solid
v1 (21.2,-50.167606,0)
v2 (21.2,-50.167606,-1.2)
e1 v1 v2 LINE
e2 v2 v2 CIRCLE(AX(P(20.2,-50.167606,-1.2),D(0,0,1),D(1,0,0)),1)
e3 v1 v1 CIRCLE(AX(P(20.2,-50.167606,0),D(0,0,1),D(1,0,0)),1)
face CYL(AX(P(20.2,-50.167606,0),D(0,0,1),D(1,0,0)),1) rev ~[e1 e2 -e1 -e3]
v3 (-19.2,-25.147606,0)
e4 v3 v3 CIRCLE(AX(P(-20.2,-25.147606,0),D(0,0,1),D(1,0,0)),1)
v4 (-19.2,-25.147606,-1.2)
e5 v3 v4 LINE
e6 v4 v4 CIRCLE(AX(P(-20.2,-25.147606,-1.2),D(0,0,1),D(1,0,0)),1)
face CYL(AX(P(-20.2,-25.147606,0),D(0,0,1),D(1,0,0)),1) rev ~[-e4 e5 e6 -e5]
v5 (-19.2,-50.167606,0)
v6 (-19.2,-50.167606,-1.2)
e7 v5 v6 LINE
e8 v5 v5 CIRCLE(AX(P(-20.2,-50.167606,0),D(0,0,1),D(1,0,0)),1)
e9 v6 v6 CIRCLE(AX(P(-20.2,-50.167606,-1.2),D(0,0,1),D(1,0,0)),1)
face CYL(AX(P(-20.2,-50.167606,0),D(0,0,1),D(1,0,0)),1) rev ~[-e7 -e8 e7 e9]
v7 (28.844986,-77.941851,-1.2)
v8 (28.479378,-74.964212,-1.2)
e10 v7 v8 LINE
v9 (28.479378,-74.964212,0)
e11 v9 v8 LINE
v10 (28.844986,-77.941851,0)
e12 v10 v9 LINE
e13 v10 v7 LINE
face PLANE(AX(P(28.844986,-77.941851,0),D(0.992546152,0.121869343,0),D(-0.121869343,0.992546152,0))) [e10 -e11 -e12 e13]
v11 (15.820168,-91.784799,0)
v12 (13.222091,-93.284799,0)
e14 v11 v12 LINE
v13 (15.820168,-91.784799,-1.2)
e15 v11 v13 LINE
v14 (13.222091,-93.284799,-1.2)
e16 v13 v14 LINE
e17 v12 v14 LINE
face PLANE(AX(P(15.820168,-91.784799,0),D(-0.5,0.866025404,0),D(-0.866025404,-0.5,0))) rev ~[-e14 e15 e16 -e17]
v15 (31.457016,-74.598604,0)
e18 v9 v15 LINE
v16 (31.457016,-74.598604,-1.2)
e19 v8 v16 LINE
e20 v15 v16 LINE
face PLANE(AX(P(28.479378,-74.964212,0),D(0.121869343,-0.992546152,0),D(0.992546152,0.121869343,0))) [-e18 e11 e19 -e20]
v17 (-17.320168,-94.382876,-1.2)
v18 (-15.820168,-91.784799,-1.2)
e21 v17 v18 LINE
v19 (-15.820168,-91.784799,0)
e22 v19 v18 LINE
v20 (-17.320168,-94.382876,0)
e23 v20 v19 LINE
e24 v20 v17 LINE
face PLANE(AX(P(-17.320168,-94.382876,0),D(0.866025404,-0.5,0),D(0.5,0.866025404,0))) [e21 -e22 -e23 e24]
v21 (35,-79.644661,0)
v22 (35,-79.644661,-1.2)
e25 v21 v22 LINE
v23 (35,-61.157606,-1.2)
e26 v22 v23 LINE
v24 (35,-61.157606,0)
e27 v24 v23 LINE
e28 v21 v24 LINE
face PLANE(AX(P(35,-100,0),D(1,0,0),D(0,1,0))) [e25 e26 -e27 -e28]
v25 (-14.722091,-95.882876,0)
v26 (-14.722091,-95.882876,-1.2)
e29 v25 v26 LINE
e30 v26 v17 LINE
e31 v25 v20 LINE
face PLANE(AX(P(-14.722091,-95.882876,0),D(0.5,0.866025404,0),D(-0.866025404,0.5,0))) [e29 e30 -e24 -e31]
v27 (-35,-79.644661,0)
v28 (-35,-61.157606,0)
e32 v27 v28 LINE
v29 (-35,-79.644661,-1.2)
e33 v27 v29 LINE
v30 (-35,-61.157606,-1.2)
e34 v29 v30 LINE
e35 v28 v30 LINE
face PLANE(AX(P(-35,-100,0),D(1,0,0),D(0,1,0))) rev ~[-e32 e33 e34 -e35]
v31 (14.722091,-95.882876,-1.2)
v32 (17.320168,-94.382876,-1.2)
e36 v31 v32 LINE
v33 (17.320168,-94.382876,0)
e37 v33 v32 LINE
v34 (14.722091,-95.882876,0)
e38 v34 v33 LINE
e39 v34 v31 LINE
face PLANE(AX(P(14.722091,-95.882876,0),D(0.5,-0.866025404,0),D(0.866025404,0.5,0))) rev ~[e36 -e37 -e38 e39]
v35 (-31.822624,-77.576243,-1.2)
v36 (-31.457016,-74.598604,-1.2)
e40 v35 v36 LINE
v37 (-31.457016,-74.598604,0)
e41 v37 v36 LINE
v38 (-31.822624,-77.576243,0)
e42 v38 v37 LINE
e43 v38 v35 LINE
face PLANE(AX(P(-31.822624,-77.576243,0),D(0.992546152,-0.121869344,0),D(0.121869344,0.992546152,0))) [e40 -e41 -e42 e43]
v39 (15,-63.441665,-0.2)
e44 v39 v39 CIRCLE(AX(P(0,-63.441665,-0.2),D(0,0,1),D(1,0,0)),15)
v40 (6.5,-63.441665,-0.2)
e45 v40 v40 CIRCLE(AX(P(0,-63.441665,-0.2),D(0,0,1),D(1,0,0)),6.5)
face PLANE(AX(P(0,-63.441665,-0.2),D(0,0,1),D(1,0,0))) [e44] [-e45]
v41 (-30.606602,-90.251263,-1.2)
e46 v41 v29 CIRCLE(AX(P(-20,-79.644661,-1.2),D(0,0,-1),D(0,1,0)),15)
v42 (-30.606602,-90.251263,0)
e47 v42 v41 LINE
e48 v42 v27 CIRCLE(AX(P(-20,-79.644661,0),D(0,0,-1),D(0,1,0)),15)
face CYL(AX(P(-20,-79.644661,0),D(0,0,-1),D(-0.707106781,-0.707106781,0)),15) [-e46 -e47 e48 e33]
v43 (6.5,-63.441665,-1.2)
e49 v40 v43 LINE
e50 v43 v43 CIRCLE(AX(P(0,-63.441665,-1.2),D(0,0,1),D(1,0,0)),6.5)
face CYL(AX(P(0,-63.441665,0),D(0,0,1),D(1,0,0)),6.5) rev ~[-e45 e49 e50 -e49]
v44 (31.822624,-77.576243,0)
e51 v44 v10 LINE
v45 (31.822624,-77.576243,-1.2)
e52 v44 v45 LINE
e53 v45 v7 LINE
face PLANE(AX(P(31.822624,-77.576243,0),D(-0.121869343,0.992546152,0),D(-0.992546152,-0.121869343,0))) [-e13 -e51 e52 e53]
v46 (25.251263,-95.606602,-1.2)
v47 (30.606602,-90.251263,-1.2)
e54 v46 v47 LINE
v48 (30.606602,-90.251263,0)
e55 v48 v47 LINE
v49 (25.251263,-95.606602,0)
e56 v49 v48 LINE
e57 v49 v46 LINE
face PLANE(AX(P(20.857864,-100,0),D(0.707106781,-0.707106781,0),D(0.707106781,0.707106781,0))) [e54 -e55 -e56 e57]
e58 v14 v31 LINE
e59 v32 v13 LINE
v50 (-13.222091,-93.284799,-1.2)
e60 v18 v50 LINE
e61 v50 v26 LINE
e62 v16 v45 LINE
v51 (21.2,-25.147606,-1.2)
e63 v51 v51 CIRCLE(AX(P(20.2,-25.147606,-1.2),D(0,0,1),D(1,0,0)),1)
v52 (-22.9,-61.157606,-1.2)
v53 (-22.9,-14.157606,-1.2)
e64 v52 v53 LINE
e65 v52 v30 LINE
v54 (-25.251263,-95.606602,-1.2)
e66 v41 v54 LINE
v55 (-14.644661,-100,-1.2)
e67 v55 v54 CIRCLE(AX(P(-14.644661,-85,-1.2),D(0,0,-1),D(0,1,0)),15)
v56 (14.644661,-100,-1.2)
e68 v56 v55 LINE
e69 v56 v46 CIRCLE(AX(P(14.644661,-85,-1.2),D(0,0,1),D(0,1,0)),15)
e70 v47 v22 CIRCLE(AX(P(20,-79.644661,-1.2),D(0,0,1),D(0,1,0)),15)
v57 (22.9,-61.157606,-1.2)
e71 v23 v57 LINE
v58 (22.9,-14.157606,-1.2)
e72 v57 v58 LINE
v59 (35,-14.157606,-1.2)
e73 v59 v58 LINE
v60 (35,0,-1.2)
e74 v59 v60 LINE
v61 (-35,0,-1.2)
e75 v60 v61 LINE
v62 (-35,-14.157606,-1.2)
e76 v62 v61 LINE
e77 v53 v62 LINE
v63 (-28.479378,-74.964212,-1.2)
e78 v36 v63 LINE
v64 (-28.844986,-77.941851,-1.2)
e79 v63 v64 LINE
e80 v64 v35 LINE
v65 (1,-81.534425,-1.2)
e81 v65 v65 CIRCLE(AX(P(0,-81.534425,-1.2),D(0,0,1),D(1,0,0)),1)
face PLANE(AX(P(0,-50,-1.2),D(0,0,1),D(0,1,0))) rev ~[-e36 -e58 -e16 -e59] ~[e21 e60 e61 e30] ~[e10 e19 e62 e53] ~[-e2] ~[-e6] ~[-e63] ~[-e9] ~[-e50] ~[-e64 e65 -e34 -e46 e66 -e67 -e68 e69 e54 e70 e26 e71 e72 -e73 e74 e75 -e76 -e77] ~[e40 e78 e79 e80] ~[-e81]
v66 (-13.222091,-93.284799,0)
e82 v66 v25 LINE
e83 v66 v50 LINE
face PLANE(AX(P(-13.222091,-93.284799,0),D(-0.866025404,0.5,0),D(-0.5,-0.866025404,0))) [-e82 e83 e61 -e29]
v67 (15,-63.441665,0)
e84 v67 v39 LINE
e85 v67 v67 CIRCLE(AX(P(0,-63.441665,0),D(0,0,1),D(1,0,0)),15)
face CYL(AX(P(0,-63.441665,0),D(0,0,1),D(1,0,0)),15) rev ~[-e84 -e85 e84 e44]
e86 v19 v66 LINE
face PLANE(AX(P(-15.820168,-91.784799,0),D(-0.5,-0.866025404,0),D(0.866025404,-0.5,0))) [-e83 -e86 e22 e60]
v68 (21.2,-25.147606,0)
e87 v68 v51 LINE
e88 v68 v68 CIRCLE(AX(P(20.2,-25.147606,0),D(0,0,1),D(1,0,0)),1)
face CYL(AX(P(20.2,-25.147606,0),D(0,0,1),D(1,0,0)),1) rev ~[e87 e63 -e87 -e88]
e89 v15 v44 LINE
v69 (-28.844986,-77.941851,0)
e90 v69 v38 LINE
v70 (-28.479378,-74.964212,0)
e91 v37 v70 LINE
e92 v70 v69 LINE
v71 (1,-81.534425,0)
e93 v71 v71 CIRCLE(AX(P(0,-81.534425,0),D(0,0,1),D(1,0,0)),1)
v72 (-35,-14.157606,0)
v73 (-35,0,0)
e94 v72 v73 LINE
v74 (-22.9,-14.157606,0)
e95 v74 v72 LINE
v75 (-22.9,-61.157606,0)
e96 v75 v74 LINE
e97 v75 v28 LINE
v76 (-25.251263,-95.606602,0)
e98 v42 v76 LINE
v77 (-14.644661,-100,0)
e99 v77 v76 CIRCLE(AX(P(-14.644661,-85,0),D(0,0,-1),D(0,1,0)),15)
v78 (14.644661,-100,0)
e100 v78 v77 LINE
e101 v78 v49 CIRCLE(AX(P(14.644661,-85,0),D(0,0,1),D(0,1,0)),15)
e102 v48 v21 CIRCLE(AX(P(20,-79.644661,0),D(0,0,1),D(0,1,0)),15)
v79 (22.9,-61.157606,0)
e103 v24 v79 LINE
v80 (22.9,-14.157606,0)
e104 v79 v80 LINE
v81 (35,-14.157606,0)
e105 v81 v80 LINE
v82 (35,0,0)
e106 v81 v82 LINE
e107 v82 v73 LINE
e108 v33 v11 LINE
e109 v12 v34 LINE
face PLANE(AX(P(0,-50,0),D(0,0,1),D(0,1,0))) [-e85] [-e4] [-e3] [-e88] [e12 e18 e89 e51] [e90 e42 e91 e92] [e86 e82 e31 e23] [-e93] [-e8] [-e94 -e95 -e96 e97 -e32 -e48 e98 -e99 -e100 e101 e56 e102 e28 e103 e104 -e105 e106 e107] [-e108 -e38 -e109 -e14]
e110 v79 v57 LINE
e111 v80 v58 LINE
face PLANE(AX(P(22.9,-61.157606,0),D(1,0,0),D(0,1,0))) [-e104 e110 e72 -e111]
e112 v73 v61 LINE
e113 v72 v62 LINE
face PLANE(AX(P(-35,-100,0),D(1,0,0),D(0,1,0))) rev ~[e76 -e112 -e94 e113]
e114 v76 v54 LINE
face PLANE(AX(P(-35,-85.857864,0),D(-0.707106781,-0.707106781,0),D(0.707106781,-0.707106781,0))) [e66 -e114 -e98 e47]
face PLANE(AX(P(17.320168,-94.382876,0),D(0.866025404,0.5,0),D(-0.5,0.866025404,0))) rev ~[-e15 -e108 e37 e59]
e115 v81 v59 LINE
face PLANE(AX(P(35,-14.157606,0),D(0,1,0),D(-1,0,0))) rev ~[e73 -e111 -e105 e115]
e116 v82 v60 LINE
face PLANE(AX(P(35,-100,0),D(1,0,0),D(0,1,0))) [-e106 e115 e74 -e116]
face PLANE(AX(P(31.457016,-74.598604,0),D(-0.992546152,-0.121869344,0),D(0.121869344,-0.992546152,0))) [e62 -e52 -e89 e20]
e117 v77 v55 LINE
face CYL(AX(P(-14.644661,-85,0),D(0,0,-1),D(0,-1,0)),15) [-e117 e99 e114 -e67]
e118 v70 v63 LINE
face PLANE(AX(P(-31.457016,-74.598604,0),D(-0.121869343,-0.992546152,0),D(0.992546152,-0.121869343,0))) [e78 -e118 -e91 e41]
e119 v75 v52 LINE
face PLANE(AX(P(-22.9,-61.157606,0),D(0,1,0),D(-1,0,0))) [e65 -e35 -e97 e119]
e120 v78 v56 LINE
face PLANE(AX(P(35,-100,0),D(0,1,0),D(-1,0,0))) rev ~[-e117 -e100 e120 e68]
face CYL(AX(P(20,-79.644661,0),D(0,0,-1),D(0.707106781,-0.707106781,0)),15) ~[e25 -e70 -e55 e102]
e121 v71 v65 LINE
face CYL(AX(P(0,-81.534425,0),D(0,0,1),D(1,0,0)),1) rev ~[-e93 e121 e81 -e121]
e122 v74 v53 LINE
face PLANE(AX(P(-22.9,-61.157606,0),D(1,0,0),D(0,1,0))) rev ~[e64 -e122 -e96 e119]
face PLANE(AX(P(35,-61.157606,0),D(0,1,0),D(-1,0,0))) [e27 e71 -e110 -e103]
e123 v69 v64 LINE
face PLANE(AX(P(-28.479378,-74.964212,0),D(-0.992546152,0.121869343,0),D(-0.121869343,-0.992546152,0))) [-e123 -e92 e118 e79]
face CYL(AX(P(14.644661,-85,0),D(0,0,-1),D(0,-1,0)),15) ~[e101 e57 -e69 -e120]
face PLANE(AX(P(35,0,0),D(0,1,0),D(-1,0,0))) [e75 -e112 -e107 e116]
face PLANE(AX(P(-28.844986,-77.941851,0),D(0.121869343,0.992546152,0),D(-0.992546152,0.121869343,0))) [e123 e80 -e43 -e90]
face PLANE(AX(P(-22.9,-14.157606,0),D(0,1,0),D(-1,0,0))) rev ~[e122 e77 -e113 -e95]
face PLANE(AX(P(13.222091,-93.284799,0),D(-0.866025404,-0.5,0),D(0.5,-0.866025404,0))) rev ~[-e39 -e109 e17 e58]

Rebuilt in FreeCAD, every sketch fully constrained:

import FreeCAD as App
import Part
import Sketcher
Q = App.Units.Quantity


def edges_at(feature, points):
    """Names of the edges that pass closest to the given points."""
    edges = feature.Shape.Edges
    near = lambda p: min(range(len(edges)), key=lambda i: edges[i].distToShape(Part.Vertex(*p))[0])
    return sorted({f"Edge{near(p) + 1}" for p in points})

doc = App.newDocument("Part")
body = doc.addObject("PartDesign::Body", "Body")

# Sketch on XY plane
sketch1 = body.newObject("Sketcher::SketchObject", "Sketch")
sketch1.AttachmentSupport = (doc.getObject("XY_Plane"), [""])
sketch1.MapMode = "FlatFace"
sketch1.addGeometry([
    Part.LineSegment(App.Vector(-35, -100, 0), App.Vector(35, -100, 0)),  # 0
    Part.LineSegment(App.Vector(35, -100, 0), App.Vector(35, 0, 0)),  # 1
    Part.LineSegment(App.Vector(35, 0, 0), App.Vector(-35, 0, 0)),  # 2
    Part.LineSegment(App.Vector(-35, 0, 0), App.Vector(-35, -100, 0)),  # 3
    Part.Circle(App.Vector(20.2, -50.167606, 0), App.Vector(0, 0, 1), 1),  # 4
    Part.Circle(App.Vector(20.2, -25.147606, 0), App.Vector(0, 0, 1), 1),  # 5
    Part.Circle(App.Vector(0, -81.534425, 0), App.Vector(0, 0, 1), 1),  # 6
    Part.Circle(App.Vector(0, -63.441665, 0), App.Vector(0, 0, 1), 6.5),  # 7
    Part.Circle(App.Vector(-20.2, -50.167606, 0), App.Vector(0, 0, 1), 1),  # 8
    Part.Circle(App.Vector(-20.2, -25.147606, 0), App.Vector(0, 0, 1), 1),  # 9
], False)
sketch1.addConstraint([
    Sketcher.Constraint("Coincident", 0, 2, 1, 1),
    Sketcher.Constraint("Coincident", 1, 2, 2, 1),
    Sketcher.Constraint("Coincident", 2, 2, 3, 1),
    Sketcher.Constraint("Coincident", 3, 2, 0, 1),
    Sketcher.Constraint("Horizontal", 0),
    Sketcher.Constraint("Vertical", 1),
    Sketcher.Constraint("Horizontal", 2),
    Sketcher.Constraint("Vertical", 3),
    Sketcher.Constraint("Equal", 4, 5),
    Sketcher.Constraint("Equal", 5, 6),
    Sketcher.Constraint("Equal", 6, 8),
    Sketcher.Constraint("Equal", 8, 9),
    Sketcher.Constraint("Symmetric", 1, 2, 2, 2, -1, 1),
    Sketcher.Constraint("Symmetric", 4, 3, 8, 3, -2),
    Sketcher.Constraint("Symmetric", 5, 3, 9, 3, -2),
    Sketcher.Constraint("PointOnObject", 6, 3, -2),
    Sketcher.Constraint("PointOnObject", 7, 3, -2),
    Sketcher.Constraint("Vertical", 4, 3, 5, 3),
    Sketcher.Constraint("Diameter", 4, 2.0),
    Sketcher.Constraint("Diameter", 7, 13.0),
    Sketcher.Constraint("DistanceX", 0, 1, 0, 2, 70.0),
    Sketcher.Constraint("DistanceY", 1, 1, 1, 2, 100.0),
    Sketcher.Constraint("DistanceX", -1, 1, 4, 3, 20.2),
    Sketcher.Constraint("DistanceY", 4, 3, 5, 3, 25.02),
    Sketcher.Constraint("DistanceY", 6, 3, 4, 3, 31.366819),
    Sketcher.Constraint("DistanceY", 6, 3, 7, 3, 18.09276),
    Sketcher.Constraint("DistanceY", 4, 3, -1, 1, 50.167606),
])
pad1 = body.newObject("PartDesign::Pad", "Pad")
pad1.Profile = sketch1
pad1.Length = 1.2
pad1.Reversed = True

# Sketch on XY plane
sketch2 = body.newObject("Sketcher::SketchObject", "Sketch001")
sketch2.AttachmentSupport = (doc.getObject("XY_Plane"), [""])
sketch2.MapMode = "FlatFace"
sketch2.addGeometry([
    Part.LineSegment(App.Vector(-35, -61.157606, 0), App.Vector(-22.9, -61.157606, 0)),  # 0
    Part.LineSegment(App.Vector(-22.9, -61.157606, 0), App.Vector(-22.9, -14.157606, 0)),  # 1
    Part.LineSegment(App.Vector(-22.9, -14.157606, 0), App.Vector(-35, -14.157606, 0)),  # 2
    Part.LineSegment(App.Vector(-35, -14.157606, 0), App.Vector(-35, -61.157606, 0)),  # 3
    Part.LineSegment(App.Vector(22.9, -61.157606, 0), App.Vector(35, -61.157606, 0)),  # 4
    Part.LineSegment(App.Vector(35, -61.157606, 0), App.Vector(35, -14.157606, 0)),  # 5
    Part.LineSegment(App.Vector(35, -14.157606, 0), App.Vector(22.9, -14.157606, 0)),  # 6
    Part.LineSegment(App.Vector(22.9, -14.157606, 0), App.Vector(22.9, -61.157606, 0)),  # 7
], False)
sketch2.addConstraint([
    Sketcher.Constraint("Coincident", 0, 2, 1, 1),
    Sketcher.Constraint("Coincident", 1, 2, 2, 1),
    Sketcher.Constraint("Coincident", 2, 2, 3, 1),
    Sketcher.Constraint("Coincident", 3, 2, 0, 1),
    Sketcher.Constraint("Coincident", 4, 2, 5, 1),
    Sketcher.Constraint("Coincident", 5, 2, 6, 1),
    Sketcher.Constraint("Coincident", 6, 2, 7, 1),
    Sketcher.Constraint("Coincident", 7, 2, 4, 1),
    Sketcher.Constraint("Horizontal", 0),
    Sketcher.Constraint("Vertical", 1),
    Sketcher.Constraint("Horizontal", 2),
    Sketcher.Constraint("Vertical", 3),
    Sketcher.Constraint("Horizontal", 4),
    Sketcher.Constraint("Vertical", 5),
    Sketcher.Constraint("Horizontal", 6),
    Sketcher.Constraint("Vertical", 7),
    Sketcher.Constraint("Symmetric", 3, 2, 4, 2, -2),
    Sketcher.Constraint("Symmetric", 1, 2, 6, 2, -2),
    Sketcher.Constraint("DistanceY", 1, 1, 1, 2, 47.0),
    Sketcher.Constraint("DistanceX", 0, 1, 0, 2, 12.1),
    Sketcher.Constraint("DistanceX", 2, 2, -1, 1, 35.0),
    Sketcher.Constraint("DistanceY", 0, 2, -1, 1, 61.157606),
])
pocket1 = body.newObject("PartDesign::Pocket", "Pocket")
pocket1.Profile = sketch2
pocket1.Type = "ThroughAll"

# Sketch on XY plane
sketch3 = body.newObject("Sketcher::SketchObject", "Sketch002")
sketch3.AttachmentSupport = (doc.getObject("XY_Plane"), [""])
sketch3.MapMode = "FlatFace"
sketch3.addGeometry(Part.Circle(App.Vector(0, -63.441665, 0), App.Vector(0, 0, 1), 15), False)
sketch3.addConstraint([
    Sketcher.Constraint("PointOnObject", 0, 3, -2),
    Sketcher.Constraint("Diameter", 0, 30.0),
    Sketcher.Constraint("DistanceY", 0, 3, -1, 1, 63.441665),
])
pocket2 = body.newObject("PartDesign::Pocket", "Pocket001")
pocket2.Profile = sketch3
pocket2.Length = 0.2

# Sketch on XY plane
sketch4 = body.newObject("Sketcher::SketchObject", "Sketch003")
sketch4.AttachmentSupport = (doc.getObject("XY_Plane"), [""])
sketch4.MapMode = "FlatFace"
sketch4.addGeometry([
    Part.LineSegment(App.Vector(-20.857864, -100, 0), App.Vector(-35, -85.857864, 0)),  # 0
    Part.LineSegment(App.Vector(-35, -85.857864, 0), App.Vector(-35, -100, 0)),  # 1
    Part.LineSegment(App.Vector(-35, -100, 0), App.Vector(-20.857864, -100, 0)),  # 2
    Part.LineSegment(App.Vector(35, -100, 0), App.Vector(35, -85.857864, 0)),  # 3
    Part.LineSegment(App.Vector(35, -85.857864, 0), App.Vector(20.857864, -100, 0)),  # 4
    Part.LineSegment(App.Vector(20.857864, -100, 0), App.Vector(35, -100, 0)),  # 5
], False)
sketch4.addConstraint([
    Sketcher.Constraint("Coincident", 0, 2, 1, 1),
    Sketcher.Constraint("Coincident", 1, 2, 2, 1),
    Sketcher.Constraint("Coincident", 2, 2, 0, 1),
    Sketcher.Constraint("Coincident", 3, 2, 4, 1),
    Sketcher.Constraint("Coincident", 4, 2, 5, 1),
    Sketcher.Constraint("Coincident", 5, 2, 3, 1),
    Sketcher.Constraint("Vertical", 1),
    Sketcher.Constraint("Horizontal", 2),
    Sketcher.Constraint("Vertical", 3),
    Sketcher.Constraint("Horizontal", 5),
    Sketcher.Constraint("Symmetric", 0, 2, 3, 2, -2),
    Sketcher.Constraint("Symmetric", 2, 2, 4, 2, -2),
    Sketcher.Constraint("Perpendicular", 0, 4),
    Sketcher.Constraint("Distance", 0, 20.0),
    Sketcher.Constraint("DistanceX", 0, 2, -1, 1, 35.0),
    Sketcher.Constraint("DistanceY", 1, 2, -1, 1, 100.0),
])
pocket3 = body.newObject("PartDesign::Pocket", "Pocket002")
pocket3.Profile = sketch4
pocket3.Type = "ThroughAll"
doc.recompute()

fillet = body.newObject("PartDesign::Fillet", "Fillet")
fillet.Base = (pocket3, edges_at(pocket3, [
    (-35, -85.858, -0.6),
    (-20.858, -100, -0.6),
    (20.858, -100, -0.6),
    (35, -85.858, -0.6),
]))
fillet.Radius = 15

# Sketch on XY plane
sketch5 = body.newObject("Sketcher::SketchObject", "Sketch004")
sketch5.AttachmentSupport = (doc.getObject("XY_Plane"), [""])
sketch5.MapMode = "FlatFace"
sketch5.addGeometry([
    Part.LineSegment(App.Vector(28.844986, -77.941851, 0), App.Vector(31.822624, -77.576243, 0)),  # 0
    Part.LineSegment(App.Vector(31.822624, -77.576243, 0), App.Vector(31.457016, -74.598604, 0)),  # 1
    Part.LineSegment(App.Vector(31.457016, -74.598604, 0), App.Vector(28.479378, -74.964212, 0)),  # 2
    Part.LineSegment(App.Vector(28.479378, -74.964212, 0), App.Vector(28.844986, -77.941851, 0)),  # 3
    Part.LineSegment(App.Vector(15.820168, -91.784799, 0), App.Vector(13.222091, -93.284799, 0)),  # 4
    Part.LineSegment(App.Vector(13.222091, -93.284799, 0), App.Vector(14.722091, -95.882876, 0)),  # 5
    Part.LineSegment(App.Vector(14.722091, -95.882876, 0), App.Vector(17.320168, -94.382876, 0)),  # 6
    Part.LineSegment(App.Vector(17.320168, -94.382876, 0), App.Vector(15.820168, -91.784799, 0)),  # 7
    Part.LineSegment(App.Vector(-28.479378, -74.964212, 0), App.Vector(-31.457016, -74.598604, 0)),  # 8
    Part.LineSegment(App.Vector(-31.457016, -74.598604, 0), App.Vector(-31.822624, -77.576243, 0)),  # 9
    Part.LineSegment(App.Vector(-31.822624, -77.576243, 0), App.Vector(-28.844986, -77.941851, 0)),  # 10
    Part.LineSegment(App.Vector(-28.844986, -77.941851, 0), App.Vector(-28.479378, -74.964212, 0)),  # 11
    Part.LineSegment(App.Vector(-17.320168, -94.382876, 0), App.Vector(-14.722091, -95.882876, 0)),  # 12
    Part.LineSegment(App.Vector(-14.722091, -95.882876, 0), App.Vector(-13.222091, -93.284799, 0)),  # 13
    Part.LineSegment(App.Vector(-13.222091, -93.284799, 0), App.Vector(-15.820168, -91.784799, 0)),  # 14
    Part.LineSegment(App.Vector(-15.820168, -91.784799, 0), App.Vector(-17.320168, -94.382876, 0)),  # 15
], False)
sketch5.addConstraint([
    Sketcher.Constraint("Coincident", 0, 2, 1, 1),
    Sketcher.Constraint("Coincident", 1, 2, 2, 1),
    Sketcher.Constraint("Coincident", 2, 2, 3, 1),
    Sketcher.Constraint("Coincident", 3, 2, 0, 1),
    Sketcher.Constraint("Coincident", 4, 2, 5, 1),
    Sketcher.Constraint("Coincident", 5, 2, 6, 1),
    Sketcher.Constraint("Coincident", 6, 2, 7, 1),
    Sketcher.Constraint("Coincident", 7, 2, 4, 1),
    Sketcher.Constraint("Coincident", 8, 2, 9, 1),
    Sketcher.Constraint("Coincident", 9, 2, 10, 1),
    Sketcher.Constraint("Coincident", 10, 2, 11, 1),
    Sketcher.Constraint("Coincident", 11, 2, 8, 1),
    Sketcher.Constraint("Coincident", 12, 2, 13, 1),
    Sketcher.Constraint("Coincident", 13, 2, 14, 1),
    Sketcher.Constraint("Coincident", 14, 2, 15, 1),
    Sketcher.Constraint("Coincident", 15, 2, 12, 1),
    Sketcher.Constraint("Symmetric", 1, 2, 8, 2, -2),
    Sketcher.Constraint("Symmetric", 0, 2, 9, 2, -2),
    Sketcher.Constraint("Symmetric", 3, 2, 10, 2, -2),
    Sketcher.Constraint("Symmetric", 2, 2, 11, 2, -2),
    Sketcher.Constraint("Symmetric", 5, 2, 12, 2, -2),
    Sketcher.Constraint("Symmetric", 4, 2, 13, 2, -2),
    Sketcher.Constraint("Symmetric", 7, 2, 14, 2, -2),
    Sketcher.Constraint("Symmetric", 6, 2, 15, 2, -2),
    Sketcher.Constraint("Perpendicular", 0, 1),
    Sketcher.Constraint("Perpendicular", 1, 2),
    Sketcher.Constraint("Perpendicular", 2, 3),
    Sketcher.Constraint("Perpendicular", 4, 5),
    Sketcher.Constraint("Perpendicular", 5, 6),
    Sketcher.Constraint("Perpendicular", 6, 7),
    Sketcher.Constraint("Equal", 0, 1),
    Sketcher.Constraint("Equal", 3, 4),
    Sketcher.Constraint("Equal", 4, 5),
    Sketcher.Constraint("Angle", 0, Q("7 deg")),
    Sketcher.Constraint("Angle", 4, Q("-150 deg")),
    Sketcher.Constraint("Distance", 0, 3.0),
    Sketcher.Constraint("DistanceY", 4, 2, -1, 1, 93.284799),
    Sketcher.Constraint("DistanceY", 3, 2, -1, 1, 77.941851),
    Sketcher.Constraint("DistanceX", -1, 1, 4, 2, 13.222091),
    Sketcher.Constraint("DistanceX", 6, 2, 2, 2, 11.15921),
])
pocket4 = body.newObject("PartDesign::Pocket", "Pocket003")
pocket4.Profile = sketch5
pocket4.Type = "ThroughAll"

doc.recompute()
